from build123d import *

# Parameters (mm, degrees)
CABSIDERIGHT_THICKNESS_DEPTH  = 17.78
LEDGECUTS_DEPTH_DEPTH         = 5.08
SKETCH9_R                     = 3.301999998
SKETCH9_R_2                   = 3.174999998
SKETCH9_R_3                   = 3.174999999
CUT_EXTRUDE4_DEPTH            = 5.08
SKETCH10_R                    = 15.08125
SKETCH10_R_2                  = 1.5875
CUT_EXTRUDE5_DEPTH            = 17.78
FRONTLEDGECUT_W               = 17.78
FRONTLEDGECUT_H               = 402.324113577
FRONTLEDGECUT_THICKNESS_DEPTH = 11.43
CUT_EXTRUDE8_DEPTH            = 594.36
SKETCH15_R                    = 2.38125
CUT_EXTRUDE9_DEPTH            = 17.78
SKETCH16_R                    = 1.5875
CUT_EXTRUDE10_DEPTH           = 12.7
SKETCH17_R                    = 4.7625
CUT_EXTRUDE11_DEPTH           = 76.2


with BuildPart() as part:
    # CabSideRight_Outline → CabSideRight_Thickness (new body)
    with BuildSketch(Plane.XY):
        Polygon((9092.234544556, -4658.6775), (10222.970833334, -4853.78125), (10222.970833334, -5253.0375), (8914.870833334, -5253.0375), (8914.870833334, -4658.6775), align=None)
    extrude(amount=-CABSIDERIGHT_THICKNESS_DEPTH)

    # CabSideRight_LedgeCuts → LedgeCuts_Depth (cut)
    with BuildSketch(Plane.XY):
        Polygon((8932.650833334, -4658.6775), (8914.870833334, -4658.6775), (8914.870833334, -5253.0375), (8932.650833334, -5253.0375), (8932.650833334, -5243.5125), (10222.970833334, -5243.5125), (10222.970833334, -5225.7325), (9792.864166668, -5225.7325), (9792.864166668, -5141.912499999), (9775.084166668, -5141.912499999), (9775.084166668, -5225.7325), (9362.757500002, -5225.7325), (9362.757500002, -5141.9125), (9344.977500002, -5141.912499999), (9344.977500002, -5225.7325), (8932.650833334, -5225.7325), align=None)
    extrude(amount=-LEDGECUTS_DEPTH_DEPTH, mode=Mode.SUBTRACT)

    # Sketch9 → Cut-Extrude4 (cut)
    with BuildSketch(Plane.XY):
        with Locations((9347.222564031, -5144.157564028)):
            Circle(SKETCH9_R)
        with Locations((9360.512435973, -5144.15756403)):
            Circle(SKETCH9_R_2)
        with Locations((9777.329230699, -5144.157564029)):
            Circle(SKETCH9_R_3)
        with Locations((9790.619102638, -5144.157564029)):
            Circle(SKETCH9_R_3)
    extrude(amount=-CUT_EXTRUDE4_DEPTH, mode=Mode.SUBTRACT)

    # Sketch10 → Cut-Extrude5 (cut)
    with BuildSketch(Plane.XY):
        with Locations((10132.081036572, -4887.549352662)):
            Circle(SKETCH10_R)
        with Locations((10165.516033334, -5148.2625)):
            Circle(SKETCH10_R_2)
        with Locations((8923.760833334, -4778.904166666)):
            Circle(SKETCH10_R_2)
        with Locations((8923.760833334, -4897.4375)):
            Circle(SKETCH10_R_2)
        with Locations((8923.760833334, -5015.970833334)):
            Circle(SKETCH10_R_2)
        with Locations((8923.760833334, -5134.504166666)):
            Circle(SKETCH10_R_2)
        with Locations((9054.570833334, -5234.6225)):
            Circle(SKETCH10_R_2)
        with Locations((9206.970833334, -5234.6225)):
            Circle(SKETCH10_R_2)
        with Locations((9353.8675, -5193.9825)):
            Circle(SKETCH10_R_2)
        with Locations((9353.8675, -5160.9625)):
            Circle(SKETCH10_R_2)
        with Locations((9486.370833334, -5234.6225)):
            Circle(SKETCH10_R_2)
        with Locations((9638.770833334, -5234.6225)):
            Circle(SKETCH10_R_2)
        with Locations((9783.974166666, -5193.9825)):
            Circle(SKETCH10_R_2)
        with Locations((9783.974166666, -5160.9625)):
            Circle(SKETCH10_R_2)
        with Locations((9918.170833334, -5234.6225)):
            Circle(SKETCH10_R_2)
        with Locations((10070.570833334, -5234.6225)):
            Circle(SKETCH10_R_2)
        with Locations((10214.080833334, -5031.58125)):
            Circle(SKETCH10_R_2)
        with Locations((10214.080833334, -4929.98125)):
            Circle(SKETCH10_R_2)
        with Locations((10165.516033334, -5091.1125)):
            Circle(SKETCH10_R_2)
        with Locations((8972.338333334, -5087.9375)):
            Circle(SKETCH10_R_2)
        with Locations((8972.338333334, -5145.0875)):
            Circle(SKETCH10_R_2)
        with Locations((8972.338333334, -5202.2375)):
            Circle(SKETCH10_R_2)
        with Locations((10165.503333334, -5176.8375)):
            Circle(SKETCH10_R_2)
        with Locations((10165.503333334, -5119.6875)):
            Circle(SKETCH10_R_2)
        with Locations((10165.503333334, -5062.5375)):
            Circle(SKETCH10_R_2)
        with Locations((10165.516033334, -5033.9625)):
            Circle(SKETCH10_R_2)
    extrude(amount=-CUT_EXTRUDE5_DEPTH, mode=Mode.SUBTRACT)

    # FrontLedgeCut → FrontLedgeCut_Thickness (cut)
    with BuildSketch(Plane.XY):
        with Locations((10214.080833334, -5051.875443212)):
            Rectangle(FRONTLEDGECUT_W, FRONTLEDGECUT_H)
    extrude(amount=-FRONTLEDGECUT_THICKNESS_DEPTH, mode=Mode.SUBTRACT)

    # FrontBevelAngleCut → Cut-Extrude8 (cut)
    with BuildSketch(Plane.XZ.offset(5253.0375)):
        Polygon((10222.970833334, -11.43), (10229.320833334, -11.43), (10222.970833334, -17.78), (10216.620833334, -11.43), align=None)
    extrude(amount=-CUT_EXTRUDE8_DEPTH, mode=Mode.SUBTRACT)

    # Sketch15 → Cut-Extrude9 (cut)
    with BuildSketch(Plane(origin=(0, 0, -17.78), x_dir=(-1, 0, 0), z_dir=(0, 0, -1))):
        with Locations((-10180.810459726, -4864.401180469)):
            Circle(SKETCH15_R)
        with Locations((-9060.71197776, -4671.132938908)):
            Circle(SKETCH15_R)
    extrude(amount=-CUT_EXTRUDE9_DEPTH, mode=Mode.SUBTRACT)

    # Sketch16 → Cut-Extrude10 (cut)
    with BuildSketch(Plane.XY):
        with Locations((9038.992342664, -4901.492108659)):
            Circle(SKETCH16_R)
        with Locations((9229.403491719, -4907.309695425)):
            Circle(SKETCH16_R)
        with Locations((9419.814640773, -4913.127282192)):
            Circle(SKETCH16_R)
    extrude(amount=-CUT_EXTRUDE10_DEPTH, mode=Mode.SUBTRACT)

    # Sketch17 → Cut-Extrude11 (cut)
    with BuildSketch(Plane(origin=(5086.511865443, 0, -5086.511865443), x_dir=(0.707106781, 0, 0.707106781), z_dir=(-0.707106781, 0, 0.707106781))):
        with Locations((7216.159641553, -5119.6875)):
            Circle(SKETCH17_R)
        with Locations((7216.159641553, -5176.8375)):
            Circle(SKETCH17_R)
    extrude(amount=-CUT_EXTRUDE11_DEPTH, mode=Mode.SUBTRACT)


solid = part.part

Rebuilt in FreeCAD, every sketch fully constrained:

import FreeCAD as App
import Part
import Sketcher
from FreeCAD import Vector
Q = App.Units.Quantity

doc = App.newDocument("Part")
body = doc.addObject("PartDesign::Body", "Body")

sketch1 = body.newObject("Sketcher::SketchObject", "Sketch")
sketch1.AttachmentSupport = (doc.getObject("XY_Plane"), [""])
sketch1.MapMode = "FlatFace"
sketch1.addGeometry([
    Part.LineSegment(Vector(10223, -4854, 0), Vector(9092, -4659, 0)),
    Part.LineSegment(Vector(9092, -4659, 0), Vector(8915, -4659, 0)),
    Part.LineSegment(Vector(8915, -4659, 0), Vector(8915, -5253, 0)),
    Part.LineSegment(Vector(8915, -5253, 0), Vector(10223, -5253, 0)),
    Part.LineSegment(Vector(10223, -5253, 0), Vector(10223, -4854, 0)),
], False)
sketch1.addConstraint([
    Sketcher.Constraint("Coincident", 0, 2, 1, 1),
    Sketcher.Constraint("Coincident", 1, 2, 2, 1),
    Sketcher.Constraint("Coincident", 2, 2, 3, 1),
    Sketcher.Constraint("Coincident", 3, 2, 4, 1),
    Sketcher.Constraint("Coincident", 4, 2, 0, 1),
    Sketcher.Constraint("Horizontal", 1),
    Sketcher.Constraint("Vertical", 2),
    Sketcher.Constraint("Horizontal", 3),
    Sketcher.Constraint("Vertical", 4),
    Sketcher.Constraint("DistanceX", 3, 1, 3, 2, Q("51.5 in")),
    Sketcher.Constraint("DistanceY", 2, 2, 2, 1, Q("23.4 in")),
    Sketcher.Constraint("DistanceY", 4, 1, 4, 2, Q("15.71875 in")),
    Sketcher.Constraint("Distance", 0, Q("45.175 in")),
    Sketcher.Constraint("DistanceY", 2, 2, -1, 1, Q("206.8125 in")),
    Sketcher.Constraint("DistanceX", -1, 1, 0, 2, 9092.234545),
])
pad1 = body.newObject("PartDesign::Pad", "Pad")
pad1.Profile = sketch1
pad1.Length = Q("0.7 in")
pad1.Reversed = True

sketch2 = body.newObject("Sketcher::SketchObject", "Sketch001")
sketch2.AttachmentSupport = (doc.getObject("XY_Plane"), [""])
sketch2.MapMode = "FlatFace"
sketch2.addGeometry([
    Part.LineSegment(Vector(8933, -4659, 0), Vector(8915, -4659, 0)),
    Part.LineSegment(Vector(8915, -4659, 0), Vector(8915, -5253, 0)),
    Part.LineSegment(Vector(8915, -5253, 0), Vector(8933, -5253, 0)),
    Part.LineSegment(Vector(8933, -5253, 0), Vector(8933, -5244, 0)),
    Part.LineSegment(Vector(8933, -5244, 0), Vector(10223, -5244, 0)),
    Part.LineSegment(Vector(10223, -5244, 0), Vector(10223, -5226, 0)),
    Part.LineSegment(Vector(10223, -5226, 0), Vector(9793, -5226, 0)),
    Part.LineSegment(Vector(9793, -5226, 0), Vector(9793, -5142, 0)),
    Part.LineSegment(Vector(9793, -5142, 0), Vector(9775, -5142, 0)),
    Part.LineSegment(Vector(9775, -5142, 0), Vector(9775, -5226, 0)),
    Part.LineSegment(Vector(9775, -5226, 0), Vector(9363, -5226, 0)),
    Part.LineSegment(Vector(9363, -5226, 0), Vector(9363, -5142, 0)),
    Part.LineSegment(Vector(9363, -5142, 0), Vector(9345, -5142, 0)),
    Part.LineSegment(Vector(9345, -5142, 0), Vector(9345, -5226, 0)),
    Part.LineSegment(Vector(9345, -5226, 0), Vector(8933, -5226, 0)),
    Part.LineSegment(Vector(8933, -5226, 0), Vector(8933, -4659, 0)),
], False)
sketch2.addConstraint([
    Sketcher.Constraint("Coincident", 0, 2, 1, 1),
    Sketcher.Constraint("Coincident", 1, 2, 2, 1),
    Sketcher.Constraint("Coincident", 2, 2, 3, 1),
    Sketcher.Constraint("Coincident", 3, 2, 4, 1),
    Sketcher.Constraint("Coincident", 4, 2, 5, 1),
    Sketcher.Constraint("Coincident", 5, 2, 6, 1),
    Sketcher.Constraint("Coincident", 6, 2, 7, 1),
    Sketcher.Constraint("Coincident", 7, 2, 8, 1),
    Sketcher.Constraint("Coincident", 8, 2, 9, 1),
    Sketcher.Constraint("Coincident", 9, 2, 10, 1),
    Sketcher.Constraint("Coincident", 10, 2, 11, 1),
    Sketcher.Constraint("Coincident", 11, 2, 12, 1),
    Sketcher.Constraint("Coincident", 12, 2, 13, 1),
    Sketcher.Constraint("Coincident", 13, 2, 14, 1),
    Sketcher.Constraint("Coincident", 14, 2, 15, 1),
    Sketcher.Constraint("Coincident", 15, 2, 0, 1),
    Sketcher.Constraint("Horizontal", 0),
    Sketcher.Constraint("Vertical", 1),
    Sketcher.Constraint("Horizontal", 2),
    Sketcher.Constraint("Vertical", 3),
    Sketcher.Constraint("Horizontal", 4),
    Sketcher.Constraint("Vertical", 5),
    Sketcher.Constraint("Horizontal", 6),
    Sketcher.Constraint("Vertical", 7),
    Sketcher.Constraint("Horizontal", 8),
    Sketcher.Constraint("Vertical", 9),
    Sketcher.Constraint("Horizontal", 10),
    Sketcher.Constraint("Vertical", 11),
    Sketcher.Constraint("Horizontal", 12),
    Sketcher.Constraint("Vertical", 13),
    Sketcher.Constraint("Horizontal", 14),
    Sketcher.Constraint("Vertical", 15),
    Sketcher.Constraint("Horizontal", 6, 2, 9, 2),
    Sketcher.Constraint("Horizontal", 8, 2, 11, 2),
    Sketcher.Constraint("Horizontal", 10, 2, 13, 2),
    Sketcher.Constraint("Vertical", 3, 2, 14, 2),
    Sketcher.Constraint("Equal", 2, 8),
    Sketcher.Constraint("Equal", 8, 12),
    Sketcher.Constraint("Equal", 10, 14),
    Sketcher.Constraint("Equal", 12, 5),
    Sketcher.Constraint("DistanceX", 0, 2, 0, 1, Q("0.7 in")),
    Sketcher.Constraint("DistanceX", 4, 1, 4, 2, Q("50.8 in")),
    Sketcher.Constraint("DistanceY", 1, 2, 1, 1, Q("23.4 in")),
    Sketcher.Constraint("DistanceY", 7, 1, 7, 2, Q("3.3 in")),
    Sketcher.Constraint("DistanceY", 3, 1, 3, 2, Q("0.375 in")),
    Sketcher.Constraint("DistanceY", 1, 2, -1, 1, Q("206.8125 in")),
    Sketcher.Constraint("DistanceX", -1, 1, 10, 2, Q("368.6125 in")),
    Sketcher.Constraint("DistanceX", 6, 2, 6, 1, 430.106667),
])
pocket1 = body.newObject("PartDesign::Pocket", "Pocket")
pocket1.Profile = sketch2
pocket1.Length = Q("0.2 in")

sketch3 = body.newObject("Sketcher::SketchObject", "Sketch002")
sketch3.AttachmentSupport = (doc.getObject("XY_Plane"), [""])
sketch3.MapMode = "FlatFace"
sketch3.addGeometry([
    Part.Circle(Vector(9347.2, -5144.2, 0), Vector(0, 0, 1), 3.3),
    Part.Circle(Vector(9360.5, -5144.2, 0), Vector(0, 0, 1), 3.2),
    Part.Circle(Vector(9777.3, -5144.2, 0), Vector(0, 0, 1), 3.2),
    Part.Circle(Vector(9790.6, -5144.2, 0), Vector(0, 0, 1), 3.2),
], False)
sketch3.addConstraint([
    Sketcher.Constraint("Equal", 1, 2),
    Sketcher.Constraint("Equal", 2, 3),
    Sketcher.Constraint("Horizontal", 0, 3, 1, 3),
    Sketcher.Constraint("Horizontal", 1, 3, 2, 3),
    Sketcher.Constraint("Horizontal", 2, 3, 3, 3),
    Sketcher.Constraint("Diameter", 0, Q("0.26 in")),
    Sketcher.Constraint("Diameter", 1, Q("0.25 in")),
    Sketcher.Constraint("DistanceX", -1, 1, 2, 3, 9777.329231),
    Sketcher.Constraint("DistanceX", 0, 3, 1, 3, 13.289872),
    Sketcher.Constraint("DistanceX", 2, 3, 3, 3, 13.289872),
    Sketcher.Constraint("DistanceX", 0, 3, 3, 3, 443.396539),
    Sketcher.Constraint("DistanceY", 0, 3, -1, 1, 5144.157564),
])
pocket2 = body.newObject("PartDesign::Pocket", "Pocket001")
pocket2.Profile = sketch3
pocket2.Length = Q("0.2 in")

sketch4 = body.newObject("Sketcher::SketchObject", "Sketch003")
sketch4.AttachmentSupport = (doc.getObject("XY_Plane"), [""])
sketch4.MapMode = "FlatFace"
sketch4.addGeometry([
    Part.Circle(Vector(10132.1, -4887.5, 0), Vector(0, 0, 1), 15.1),
    Part.Circle(Vector(10165.5, -5148.3, 0), Vector(0, 0, 1), 1.6),
    Part.Circle(Vector(8923.8, -4778.9, 0), Vector(0, 0, 1), 1.6),
    Part.Circle(Vector(8923.8, -4897.4, 0), Vector(0, 0, 1), 1.6),
    Part.Circle(Vector(8923.8, -5016, 0), Vector(0, 0, 1), 1.6),
    Part.Circle(Vector(8923.8, -5134.5, 0), Vector(0, 0, 1), 1.6),
    Part.Circle(Vector(9054.6, -5234.6, 0), Vector(0, 0, 1), 1.6),
    Part.Circle(Vector(9207, -5234.6, 0), Vector(0, 0, 1), 1.6),
    Part.Circle(Vector(9353.9, -5194, 0), Vector(0, 0, 1), 1.6),
    Part.Circle(Vector(9353.9, -5161, 0), Vector(0, 0, 1), 1.6),
    Part.Circle(Vector(9486.4, -5234.6, 0), Vector(0, 0, 1), 1.6),
    Part.Circle(Vector(9638.8, -5234.6, 0), Vector(0, 0, 1), 1.6),
    Part.Circle(Vector(9784, -5194, 0), Vector(0, 0, 1), 1.6),
    Part.Circle(Vector(9784, -5161, 0), Vector(0, 0, 1), 1.6),
    Part.Circle(Vector(9918.2, -5234.6, 0), Vector(0, 0, 1), 1.6),
    Part.Circle(Vector(10070.6, -5234.6, 0), Vector(0, 0, 1), 1.6),
    Part.Circle(Vector(10214.1, -5031.6, 0), Vector(0, 0, 1), 1.6),
    Part.Circle(Vector(10214.1, -4930, 0), Vector(0, 0, 1), 1.6),
    Part.Circle(Vector(10165.5, -5091.1, 0), Vector(0, 0, 1), 1.6),
    Part.Circle(Vector(8972.3, -5087.9, 0), Vector(0, 0, 1), 1.6),
    Part.Circle(Vector(8972.3, -5145.1, 0), Vector(0, 0, 1), 1.6),
    Part.Circle(Vector(8972.3, -5202.2, 0), Vector(0, 0, 1), 1.6),
    Part.Circle(Vector(10165.5, -5176.8, 0), Vector(0, 0, 1), 1.6),
    Part.Circle(Vector(10165.5, -5119.7, 0), Vector(0, 0, 1), 1.6),
    Part.Circle(Vector(10165.5, -5062.5, 0), Vector(0, 0, 1), 1.6),
    Part.Circle(Vector(10165.5, -5034, 0), Vector(0, 0, 1), 1.6),
], False)
sketch4.addConstraint([
    Sketcher.Constraint("Equal", 1, 2),
    Sketcher.Constraint("Equal", 2, 3),
    Sketcher.Constraint("Equal", 3, 4),
    Sketcher.Constraint("Equal", 4, 5),
    Sketcher.Constraint("Equal", 5, 6),
    Sketcher.Constraint("Equal", 6, 7),
    Sketcher.Constraint("Equal", 7, 8),
    Sketcher.Constraint("Equal", 8, 9),
    Sketcher.Constraint("Equal", 9, 10),
    Sketcher.Constraint("Equal", 10, 11),
    Sketcher.Constraint("Equal", 11, 12),
    Sketcher.Constraint("Equal", 12, 13),
    Sketcher.Constraint("Equal", 13, 14),
    Sketcher.Constraint("Equal", 14, 15),
    Sketcher.Constraint("Equal", 15, 16),
    Sketcher.Constraint("Equal", 16, 17),
    Sketcher.Constraint("Equal", 17, 18),
    Sketcher.Constraint("Equal", 18, 19),
    Sketcher.Constraint("Equal", 19, 20),
    Sketcher.Constraint("Equal", 20, 21),
    Sketcher.Constraint("Equal", 21, 22),
    Sketcher.Constraint("Equal", 22, 23),
    Sketcher.Constraint("Equal", 23, 24),
    Sketcher.Constraint("Equal", 24, 25),
    Sketcher.Constraint("Horizontal", 6, 3, 7, 3),
    Sketcher.Constraint("Horizontal", 7, 3, 10, 3),
    Sketcher.Constraint("Horizontal", 10, 3, 11, 3),
    Sketcher.Constraint("Horizontal", 8, 3, 12, 3),
    Sketcher.Constraint("Horizontal", 9, 3, 13, 3),
    Sketcher.Constraint("Horizontal", 11, 3, 14, 3),
    Sketcher.Constraint("Horizontal", 14, 3, 15, 3),
    Sketcher.Constraint("Vertical", 2, 3, 3, 3),
    Sketcher.Constraint("Vertical", 3, 3, 4, 3),
    Sketcher.Constraint("Vertical", 4, 3, 5, 3),
    Sketcher.Constraint("Vertical", 8, 3, 9, 3),
    Sketcher.Constraint("Vertical", 12, 3, 13, 3),
    Sketcher.Constraint("Vertical", 16, 3, 17, 3),
    Sketcher.Constraint("Vertical", 1, 3, 18, 3),
    Sketcher.Constraint("Vertical", 19, 3, 20, 3),
    Sketcher.Constraint("Vertical", 20, 3, 21, 3),
    Sketcher.Constraint("Vertical", 22, 3, 23, 3),
    Sketcher.Constraint("Vertical", 23, 3, 24, 3),
    Sketcher.Constraint("Vertical", 18, 3, 25, 3),
    Sketcher.Constraint("Diameter", 0, Q("1.1875 in")),
    Sketcher.Constraint("Diameter", 1, Q("0.125 in")),
    Sketcher.Constraint("DistanceY", 5, 3, 2, 3, Q("14 in")),
    Sketcher.Constraint("DistanceX", 6, 3, 7, 3, Q("6 in")),
    Sketcher.Constraint("DistanceX", 7, 3, 10, 3, Q("11 in")),
    Sketcher.Constraint("DistanceX", 10, 3, 11, 3, Q("6 in")),
    Sketcher.Constraint("DistanceX", 11, 3, 14, 3, Q("11 in")),
    Sketcher.Constraint("DistanceX", 14, 3, 15, 3, Q("6 in")),
    Sketcher.Constraint("DistanceY", 16, 3, 17, 3, Q("4 in")),
    Sketcher.Constraint("DistanceY", 6, 3, 1, 3, Q("3.4 in")),
    Sketcher.Constraint("DistanceY", 7, 3, 8, 3, Q("1.6 in")),
    Sketcher.Constraint("DistanceY", 8, 3, 9, 3, Q("1.3 in")),
    Sketcher.Constraint("DistanceY", 19, 3, 3, 3, Q("7.5 in")),
    Sketcher.Constraint("DistanceY", 21, 3, 19, 3, Q("4.5 in")),
    Sketcher.Constraint("DistanceY", 22, 3, 24, 3, Q("4.5 in")),
    Sketcher.Constraint("DistanceY", 1, 3, 25, 3, Q("4.5 in")),
    Sketcher.Constraint("DistanceX", 5, 3, 6, 3, Q("5.15 in")),
    Sketcher.Constraint("DistanceX", 15, 3, 16, 3, Q("5.65 in")),
    Sketcher.Constraint("DistanceY", 1, 3, 18, 3, Q("2.25 in")),
    Sketcher.Constraint("DistanceY", 20, 3, 19, 3, Q("2.25 in")),
    Sketcher.Constraint("DistanceY", 22, 3, 23, 3, Q("2.25 in")),
    Sketcher.Constraint("DistanceY", 1, 3, -1, 1, Q("202.6875 in")),
    Sketcher.Constraint("DistanceY", 3, 3, -1, 1, Q("192.8125 in")),
    Sketcher.Constraint("DistanceY", 16, 3, -1, 1, Q("198.09375 in")),
    Sketcher.Constraint("DistanceY", 22, 3, -1, 1, Q("203.8125 in")),
    Sketcher.Constraint("DistanceX", 2, 3, 1, 3, Q("48.888 in")),
    Sketcher.Constraint("DistanceX", -1, 1, 8, 3, Q("368.2625 in")),
    Sketcher.Constraint("DistanceX", 5, 3, 19, 3, Q("1.9125 in")),
    Sketcher.Constraint("DistanceX", 22, 3, 1, 3, Q("0.0005 in")),
    Sketcher.Constraint("DistanceY", 4, 3, 0, 3, 128.421481),
    Sketcher.Constraint("DistanceX", -1, 1, 0, 3, 10132.081037),
    Sketcher.Constraint("DistanceY", 0, 3, -1, 1, 4887.549353),
    Sketcher.Constraint("DistanceX", -1, 1, 1, 3, 10165.516033),
    Sketcher.Constraint("DistanceY", 2, 3, -1, 1, 4778.904167),
    Sketcher.Constraint("DistanceX", -1, 1, 12, 3, 9783.974167),
])
pocket3 = body.newObject("PartDesign::Pocket", "Pocket002")
pocket3.Profile = sketch4
pocket3.Length = Q("0.7 in")

sketch5 = body.newObject("Sketcher::SketchObject", "Sketch004")
sketch5.AttachmentSupport = (doc.getObject("XY_Plane"), [""])
sketch5.MapMode = "FlatFace"
sketch5.addGeometry([
    Part.LineSegment(Vector(10205, -4851, 0), Vector(10205, -5253, 0)),
    Part.LineSegment(Vector(10205, -5253, 0), Vector(10223, -5253, 0)),
    Part.LineSegment(Vector(10223, -5253, 0), Vector(10223, -4851, 0)),
    Part.LineSegment(Vector(10223, -4851, 0), Vector(10205, -4851, 0)),
], False)
sketch5.addConstraint([
    Sketcher.Constraint("Coincident", 0, 2, 1, 1),
    Sketcher.Constraint("Coincident", 1, 2, 2, 1),
    Sketcher.Constraint("Coincident", 2, 2, 3, 1),
    Sketcher.Constraint("Coincident", 3, 2, 0, 1),
    Sketcher.Constraint("Vertical", 0),
    Sketcher.Constraint("Horizontal", 1),
    Sketcher.Constraint("Vertical", 2),
    Sketcher.Constraint("Horizontal", 3),
    Sketcher.Constraint("DistanceX", 1, 1, 1, 2, Q("0.7 in")),
    Sketcher.Constraint("DistanceY", 0, 2, -1, 1, Q("206.8125 in")),
    Sketcher.Constraint("DistanceY", 0, 2, 0, 1, 402.324114),
    Sketcher.Constraint("DistanceX", -1, 1, 0, 2, 10205.190833),
])
pocket4 = body.newObject("PartDesign::Pocket", "Pocket003")
pocket4.Profile = sketch5
pocket4.Length = Q("0.45 in")

sketch6 = body.newObject("Sketcher::SketchObject", "Sketch005")
sketch6.AttachmentSupport = (doc.getObject("XZ_Plane"), [""])
sketch6.MapMode = "FlatFace"
sketch6.AttachmentOffset = App.Placement(Vector(0, 0, 206.8125 * 25.4), App.Rotation())
sketch6.addGeometry([
    Part.LineSegment(Vector(10229, -11, 0), Vector(10217, -11, 0)),
    Part.LineSegment(Vector(10217, -11, 0), Vector(10223, -18, 0)),
    Part.LineSegment(Vector(10223, -18, 0), Vector(10229, -11, 0)),
], False)
sketch6.addConstraint([
    Sketcher.Constraint("Coincident", 0, 2, 1, 1),
    Sketcher.Constraint("Coincident", 1, 2, 2, 1),
    Sketcher.Constraint("Coincident", 2, 2, 0, 1),
    Sketcher.Constraint("Horizontal", 0),
    Sketcher.Constraint("Perpendicular", 1, 2),
    Sketcher.Constraint("Equal", 1, 2),
    Sketcher.Constraint("DistanceX", 0, 2, 0, 1, Q("0.5 in")),
    Sketcher.Constraint("DistanceY", 1, 2, -1, 1, Q("0.7 in")),
    Sketcher.Constraint("DistanceX", -1, 1, 0, 2, 10216.620833),
])
pocket5 = body.newObject("PartDesign::Pocket", "Pocket004")
pocket5.Profile = sketch6
pocket5.Length = Q("23.4 in")

sketch7 = body.newObject("Sketcher::SketchObject", "Sketch006")
sketch7.AttachmentSupport = (doc.getObject("XY_Plane"), [""])
sketch7.MapMode = "FlatFace"
sketch7.AttachmentOffset = App.Placement(Vector(0, 0, -0.7 * 25.4), App.Rotation())
sketch7.addGeometry([
    Part.Circle(Vector(10180.8, -4864.4, 0), Vector(0, 0, 1), 2.4),
    Part.Circle(Vector(9060.7, -4671.1, 0), Vector(0, 0, 1), 2.4),
], False)
sketch7.addConstraint([
    Sketcher.Constraint("Equal", 0, 1),
    Sketcher.Constraint("Diameter", 0, Q("0.1875 in")),
    Sketcher.Constraint("DistanceX", -1, 1, 0, 3, 10180.81046),
    Sketcher.Constraint("DistanceY", 0, 3, -1, 1, 4864.40118),
    Sketcher.Constraint("DistanceY", 1, 3, -1, 1, 4671.132939),
    Sketcher.Constraint("DistanceX", 1, 3, 0, 3, 1120.098482),
])
pocket6 = body.newObject("PartDesign::Pocket", "Pocket005")
pocket6.Profile = sketch7
pocket6.Length = Q("0.7 in")
pocket6.Reversed = True

sketch8 = body.newObject("Sketcher::SketchObject", "Sketch007")
sketch8.AttachmentSupport = (doc.getObject("XY_Plane"), [""])
sketch8.MapMode = "FlatFace"
sketch8.addGeometry([
    Part.Circle(Vector(9039, -4901.5, 0), Vector(0, 0, 1), 1.6),
    Part.Circle(Vector(9229.4, -4907.3, 0), Vector(0, 0, 1), 1.6),
    Part.Circle(Vector(9419.8, -4913.1, 0), Vector(0, 0, 1), 1.6),
], False)
sketch8.addConstraint([
    Sketcher.Constraint("Equal", 0, 1),
    Sketcher.Constraint("Equal", 1, 2),
    Sketcher.Constraint("Diameter", 0, Q("0.125 in")),
    Sketcher.Constraint("DistanceX", 0, 3, 2, 3, 380.822298),
    Sketcher.Constraint("DistanceY", 0, 3, -1, 1, 4901.492109),
    Sketcher.Constraint("DistanceX", -1, 1, 1, 3, 9229.403492),
    Sketcher.Constraint("DistanceX", -1, 1, 2, 3, 9419.814641),
    Sketcher.Constraint("DistanceY", 1, 3, -1, 1, 4907.309695),
    Sketcher.Constraint("DistanceY", 2, 3, -1, 1, 4913.127282),
])
pocket7 = body.newObject("PartDesign::Pocket", "Pocket006")
pocket7.Profile = sketch8
pocket7.Length = Q("0.5 in")

sketch9 = body.newObject("Sketcher::SketchObject", "Sketch008")
sketch9.Placement = App.Placement(Vector(5086.511865, 0, -5086.511865), App.Rotation(Vector(0.707106781, 0, 0.707106781), Vector(0, 0.999999999, 0), Vector(-0.707106781, 0, 0.707106781), "ZXY"))
sketch9.addGeometry([
    Part.Circle(Vector(7216.2, -5119.7, 0), Vector(0, 0, 1), 4.8),
    Part.Circle(Vector(7216.2, -5176.8, 0), Vector(0, 0, 1), 4.8),
], False)
sketch9.addConstraint([
    Sketcher.Constraint("Equal", 0, 1),
    Sketcher.Constraint("Vertical", 0, 3, 1, 3),
    Sketcher.Constraint("Diameter", 0, Q("0.375 in")),
    Sketcher.Constraint("DistanceY", 1, 3, 0, 3, Q("2.25 in")),
    Sketcher.Constraint("DistanceX", -1, 1, 0, 3, 7216.159638),
    Sketcher.Constraint("DistanceY", 0, 3, -1, 1, 5119.687495),
])
pocket8 = body.newObject("PartDesign::Pocket", "Pocket007")
pocket8.Profile = sketch9
pocket8.Length = Q("3 in")

doc.recompute()
